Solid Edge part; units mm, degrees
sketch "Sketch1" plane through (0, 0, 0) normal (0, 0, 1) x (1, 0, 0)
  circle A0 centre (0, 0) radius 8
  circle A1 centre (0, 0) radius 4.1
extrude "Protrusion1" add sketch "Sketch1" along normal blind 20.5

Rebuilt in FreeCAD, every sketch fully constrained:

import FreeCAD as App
import Part
import Sketcher

doc = App.newDocument("Part")
body = doc.addObject("PartDesign::Body", "Body")

sketch1 = body.newObject("Sketcher::SketchObject", "Sketch")
sketch1.AttachmentSupport = (doc.getObject("XY_Plane"), [""])
sketch1.MapMode = "FlatFace"
sketch1.addGeometry(Part.Circle(App.Vector(0, 0, 0), App.Vector(0, 0, 1), 8), False)
sketch1.addGeometry(Part.Circle(App.Vector(0, 0, 0), App.Vector(0, 0, 1), 4.1), False)
sketch1.addConstraint(Sketcher.Constraint("Coincident", 0, 3, -1, 1))
sketch1.addConstraint(Sketcher.Constraint("Coincident", 1, 3, -1, 1))
sketch1.addConstraint(Sketcher.Constraint("Diameter", 0, 16.0))
sketch1.addConstraint(Sketcher.Constraint("Diameter", 1, 8.2))
pad1 = body.newObject("PartDesign::Pad", "Pad")
pad1.Profile = sketch1
pad1.Length = 20.5

doc.recompute()
